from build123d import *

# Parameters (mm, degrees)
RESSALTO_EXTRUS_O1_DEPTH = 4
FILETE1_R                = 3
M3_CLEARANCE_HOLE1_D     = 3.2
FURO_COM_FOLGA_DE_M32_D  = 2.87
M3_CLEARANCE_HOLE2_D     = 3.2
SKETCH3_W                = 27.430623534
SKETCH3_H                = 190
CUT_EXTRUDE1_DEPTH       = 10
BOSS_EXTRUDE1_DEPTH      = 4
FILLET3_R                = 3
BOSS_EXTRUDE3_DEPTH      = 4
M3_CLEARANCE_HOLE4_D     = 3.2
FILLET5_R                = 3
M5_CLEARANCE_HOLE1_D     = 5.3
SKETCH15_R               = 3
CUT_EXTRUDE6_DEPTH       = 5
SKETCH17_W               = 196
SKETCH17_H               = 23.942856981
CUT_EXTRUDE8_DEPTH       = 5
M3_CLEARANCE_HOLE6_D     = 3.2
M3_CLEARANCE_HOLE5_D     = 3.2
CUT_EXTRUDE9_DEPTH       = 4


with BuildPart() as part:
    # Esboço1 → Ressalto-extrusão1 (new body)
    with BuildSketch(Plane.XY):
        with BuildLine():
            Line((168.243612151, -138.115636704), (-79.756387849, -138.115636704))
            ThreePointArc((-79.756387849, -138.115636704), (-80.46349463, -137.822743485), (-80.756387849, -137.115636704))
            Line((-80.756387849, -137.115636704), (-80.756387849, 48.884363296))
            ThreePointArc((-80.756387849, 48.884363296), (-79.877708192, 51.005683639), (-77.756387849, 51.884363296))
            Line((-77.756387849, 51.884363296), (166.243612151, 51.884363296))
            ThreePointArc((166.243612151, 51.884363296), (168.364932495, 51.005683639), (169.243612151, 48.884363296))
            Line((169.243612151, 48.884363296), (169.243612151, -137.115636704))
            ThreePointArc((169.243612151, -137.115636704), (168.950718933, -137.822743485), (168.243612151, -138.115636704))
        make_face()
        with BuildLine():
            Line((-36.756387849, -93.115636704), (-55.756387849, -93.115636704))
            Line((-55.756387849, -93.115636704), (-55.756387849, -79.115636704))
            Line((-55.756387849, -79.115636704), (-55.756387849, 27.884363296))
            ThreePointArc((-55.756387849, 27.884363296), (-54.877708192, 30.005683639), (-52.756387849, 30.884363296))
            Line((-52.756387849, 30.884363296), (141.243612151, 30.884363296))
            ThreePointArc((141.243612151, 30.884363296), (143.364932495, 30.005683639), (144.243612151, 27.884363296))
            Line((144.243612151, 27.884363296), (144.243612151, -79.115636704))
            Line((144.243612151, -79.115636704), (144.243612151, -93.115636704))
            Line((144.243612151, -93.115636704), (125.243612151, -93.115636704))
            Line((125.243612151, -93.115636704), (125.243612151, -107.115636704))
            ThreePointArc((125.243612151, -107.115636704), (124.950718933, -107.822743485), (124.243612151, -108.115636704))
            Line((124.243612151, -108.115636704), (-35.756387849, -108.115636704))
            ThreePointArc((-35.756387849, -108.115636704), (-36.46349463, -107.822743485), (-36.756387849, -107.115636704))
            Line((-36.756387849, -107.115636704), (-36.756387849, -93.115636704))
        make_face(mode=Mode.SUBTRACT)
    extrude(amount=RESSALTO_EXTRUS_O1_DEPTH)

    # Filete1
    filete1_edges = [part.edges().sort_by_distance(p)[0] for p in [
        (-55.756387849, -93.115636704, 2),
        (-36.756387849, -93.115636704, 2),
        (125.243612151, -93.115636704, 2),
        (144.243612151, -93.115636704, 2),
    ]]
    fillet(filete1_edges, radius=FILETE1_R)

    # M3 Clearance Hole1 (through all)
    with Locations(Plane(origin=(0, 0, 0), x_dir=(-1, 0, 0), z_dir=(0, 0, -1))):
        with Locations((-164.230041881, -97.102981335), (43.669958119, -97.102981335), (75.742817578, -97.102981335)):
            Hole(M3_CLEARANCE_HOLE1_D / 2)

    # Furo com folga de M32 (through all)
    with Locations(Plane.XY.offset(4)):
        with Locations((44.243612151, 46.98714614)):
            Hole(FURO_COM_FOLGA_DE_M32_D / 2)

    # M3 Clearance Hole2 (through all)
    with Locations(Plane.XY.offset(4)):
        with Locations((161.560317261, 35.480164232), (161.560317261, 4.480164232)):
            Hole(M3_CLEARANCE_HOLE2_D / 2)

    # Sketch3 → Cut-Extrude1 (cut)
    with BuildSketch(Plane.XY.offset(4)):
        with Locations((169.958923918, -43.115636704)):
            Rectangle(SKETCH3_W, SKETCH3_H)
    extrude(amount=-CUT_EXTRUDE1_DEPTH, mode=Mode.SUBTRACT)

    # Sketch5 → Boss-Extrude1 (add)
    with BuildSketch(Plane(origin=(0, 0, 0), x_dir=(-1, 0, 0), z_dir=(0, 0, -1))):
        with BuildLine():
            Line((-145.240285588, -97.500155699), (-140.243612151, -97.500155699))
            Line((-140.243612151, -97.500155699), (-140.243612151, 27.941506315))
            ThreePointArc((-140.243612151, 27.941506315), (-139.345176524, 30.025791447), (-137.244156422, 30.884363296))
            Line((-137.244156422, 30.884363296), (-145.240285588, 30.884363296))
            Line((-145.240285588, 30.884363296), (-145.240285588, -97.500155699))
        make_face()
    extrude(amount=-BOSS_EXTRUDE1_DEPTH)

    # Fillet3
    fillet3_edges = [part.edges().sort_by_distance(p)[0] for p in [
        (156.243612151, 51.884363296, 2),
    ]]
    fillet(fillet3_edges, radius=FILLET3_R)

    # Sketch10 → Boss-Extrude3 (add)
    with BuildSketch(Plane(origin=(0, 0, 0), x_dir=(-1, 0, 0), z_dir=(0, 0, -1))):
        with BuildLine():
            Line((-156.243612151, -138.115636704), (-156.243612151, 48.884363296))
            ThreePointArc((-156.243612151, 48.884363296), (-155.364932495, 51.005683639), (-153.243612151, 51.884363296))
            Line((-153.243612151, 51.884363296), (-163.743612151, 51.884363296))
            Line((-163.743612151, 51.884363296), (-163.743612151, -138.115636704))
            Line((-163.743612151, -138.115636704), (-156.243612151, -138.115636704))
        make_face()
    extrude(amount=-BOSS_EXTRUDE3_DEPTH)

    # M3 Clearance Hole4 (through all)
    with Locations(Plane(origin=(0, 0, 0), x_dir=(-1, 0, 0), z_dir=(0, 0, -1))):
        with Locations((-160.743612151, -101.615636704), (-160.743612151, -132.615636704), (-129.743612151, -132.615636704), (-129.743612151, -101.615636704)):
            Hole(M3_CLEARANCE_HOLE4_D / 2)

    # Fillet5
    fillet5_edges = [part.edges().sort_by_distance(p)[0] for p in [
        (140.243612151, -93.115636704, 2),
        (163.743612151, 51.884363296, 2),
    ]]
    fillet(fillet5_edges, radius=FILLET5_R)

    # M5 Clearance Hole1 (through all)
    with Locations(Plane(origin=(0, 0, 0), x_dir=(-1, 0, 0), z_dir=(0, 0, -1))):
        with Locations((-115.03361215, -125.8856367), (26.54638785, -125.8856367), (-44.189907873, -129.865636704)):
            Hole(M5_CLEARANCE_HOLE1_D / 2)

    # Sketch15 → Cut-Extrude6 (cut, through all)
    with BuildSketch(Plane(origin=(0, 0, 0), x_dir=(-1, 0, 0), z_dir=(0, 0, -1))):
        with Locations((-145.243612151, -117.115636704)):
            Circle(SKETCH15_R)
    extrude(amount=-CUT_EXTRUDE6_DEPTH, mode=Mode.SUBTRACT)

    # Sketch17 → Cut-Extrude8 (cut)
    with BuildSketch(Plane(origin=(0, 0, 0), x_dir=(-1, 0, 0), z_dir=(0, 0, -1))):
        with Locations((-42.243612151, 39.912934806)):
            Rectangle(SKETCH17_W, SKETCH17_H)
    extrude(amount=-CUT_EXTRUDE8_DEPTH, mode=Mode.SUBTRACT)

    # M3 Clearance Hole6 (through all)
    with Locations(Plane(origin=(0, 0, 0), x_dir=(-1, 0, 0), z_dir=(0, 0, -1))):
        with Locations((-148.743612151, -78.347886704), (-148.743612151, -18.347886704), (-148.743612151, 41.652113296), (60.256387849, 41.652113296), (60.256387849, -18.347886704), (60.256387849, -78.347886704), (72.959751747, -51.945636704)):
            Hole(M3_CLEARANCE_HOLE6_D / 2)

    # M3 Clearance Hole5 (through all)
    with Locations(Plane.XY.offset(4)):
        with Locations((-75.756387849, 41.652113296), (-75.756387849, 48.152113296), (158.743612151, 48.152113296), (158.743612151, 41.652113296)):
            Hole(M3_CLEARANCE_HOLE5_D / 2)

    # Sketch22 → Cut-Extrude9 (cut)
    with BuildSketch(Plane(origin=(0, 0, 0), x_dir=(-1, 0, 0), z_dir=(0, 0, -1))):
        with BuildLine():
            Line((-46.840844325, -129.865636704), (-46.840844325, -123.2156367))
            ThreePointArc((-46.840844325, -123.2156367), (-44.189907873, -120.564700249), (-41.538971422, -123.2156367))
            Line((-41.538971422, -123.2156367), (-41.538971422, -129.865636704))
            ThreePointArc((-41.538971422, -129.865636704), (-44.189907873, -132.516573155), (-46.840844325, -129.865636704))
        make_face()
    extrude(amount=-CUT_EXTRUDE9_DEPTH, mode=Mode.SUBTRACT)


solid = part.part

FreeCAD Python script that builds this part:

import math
import FreeCAD as App
import Part
import Sketcher


def edges_at(feature, points):
    """Names of the edges that pass closest to the given points."""
    edges = feature.Shape.Edges
    near = lambda p: min(range(len(edges)), key=lambda i: edges[i].distToShape(Part.Vertex(*p))[0])
    return sorted({f"Edge{near(p) + 1}" for p in points})

doc = App.newDocument("Part")
body = doc.addObject("PartDesign::Body", "Body")

sketch1 = body.newObject("Sketcher::SketchObject", "Sketch")
sketch1.AttachmentSupport = (doc.getObject("XY_Plane"), [""])
sketch1.MapMode = "FlatFace"
sketch1.addGeometry(Part.LineSegment(App.Vector(-79.756388, -138.115637, 0), App.Vector(168.243612, -138.115637, 0)), False)
sketch1.addGeometry(Part.ArcOfCircle(Part.Circle(App.Vector(168.243612, -137.115637, 0), App.Vector(0, 0, 1), 1), math.radians(-90), math.radians(0)), False)
sketch1.addGeometry(Part.LineSegment(App.Vector(169.243612, -137.115637, 0), App.Vector(169.243612, 48.884363, 0)), False)
sketch1.addGeometry(Part.ArcOfCircle(Part.Circle(App.Vector(166.243612, 48.884363, 0), App.Vector(0, 0, 1), 3), math.radians(0), math.radians(90)), False)
sketch1.addGeometry(Part.LineSegment(App.Vector(166.243612, 51.884363, 0), App.Vector(-77.756388, 51.884363, 0)), False)
sketch1.addGeometry(Part.ArcOfCircle(Part.Circle(App.Vector(-77.756388, 48.884363, 0), App.Vector(0, 0, 1), 3), math.radians(90), math.radians(180)), False)
sketch1.addGeometry(Part.LineSegment(App.Vector(-80.756388, 48.884363, 0), App.Vector(-80.756388, -137.115637, 0)), False)
sketch1.addGeometry(Part.ArcOfCircle(Part.Circle(App.Vector(-79.756388, -137.115637, 0), App.Vector(0, 0, 1), 1), math.radians(-180), math.radians(-90)), False)
sketch1.addGeometry(Part.LineSegment(App.Vector(-36.756388, -93.115637, 0), App.Vector(-55.756388, -93.115637, 0)), False)
sketch1.addGeometry(Part.LineSegment(App.Vector(-55.756388, -93.115637, 0), App.Vector(-55.756388, 27.884363, 0)), False)
sketch1.addGeometry(Part.ArcOfCircle(Part.Circle(App.Vector(-52.756388, 27.884363, 0), App.Vector(0, 0, 1), 3), math.radians(90), math.radians(180)), False)
sketch1.addGeometry(Part.LineSegment(App.Vector(-52.756388, 30.884363, 0), App.Vector(141.243612, 30.884363, 0)), False)
sketch1.addGeometry(Part.ArcOfCircle(Part.Circle(App.Vector(141.243612, 27.884363, 0), App.Vector(0, 0, 1), 3), math.radians(0), math.radians(90)), False)
sketch1.addGeometry(Part.LineSegment(App.Vector(144.243612, 27.884363, 0), App.Vector(144.243612, -93.115637, 0)), False)
sketch1.addGeometry(Part.LineSegment(App.Vector(144.243612, -93.115637, 0), App.Vector(125.243612, -93.115637, 0)), False)
sketch1.addGeometry(Part.LineSegment(App.Vector(125.243612, -93.115637, 0), App.Vector(125.243612, -107.115637, 0)), False)
sketch1.addGeometry(Part.ArcOfCircle(Part.Circle(App.Vector(124.243612, -107.115637, 0), App.Vector(0, 0, 1), 1), math.radians(-90), math.radians(0)), False)
sketch1.addGeometry(Part.LineSegment(App.Vector(124.243612, -108.115637, 0), App.Vector(-35.756388, -108.115637, 0)), False)
sketch1.addGeometry(Part.ArcOfCircle(Part.Circle(App.Vector(-35.756388, -107.115637, 0), App.Vector(0, 0, 1), 1), math.radians(-180), math.radians(-90)), False)
sketch1.addGeometry(Part.LineSegment(App.Vector(-36.756388, -107.115637, 0), App.Vector(-36.756388, -93.115637, 0)), False)
sketch1.addConstraint(Sketcher.Constraint("Tangent", 0, 2, 1, 1))
sketch1.addConstraint(Sketcher.Constraint("Tangent", 1, 2, 2, 1))
sketch1.addConstraint(Sketcher.Constraint("Tangent", 2, 2, 3, 1))
sketch1.addConstraint(Sketcher.Constraint("Tangent", 3, 2, 4, 1))
sketch1.addConstraint(Sketcher.Constraint("Tangent", 4, 2, 5, 1))
sketch1.addConstraint(Sketcher.Constraint("Tangent", 5, 2, 6, 1))
sketch1.addConstraint(Sketcher.Constraint("Tangent", 6, 2, 7, 1))
sketch1.addConstraint(Sketcher.Constraint("Tangent", 7, 2, 0, 1))
sketch1.addConstraint(Sketcher.Constraint("Coincident", 8, 2, 9, 1))
sketch1.addConstraint(Sketcher.Constraint("Tangent", 9, 2, 10, 2))
sketch1.addConstraint(Sketcher.Constraint("Tangent", 10, 1, 11, 1))
sketch1.addConstraint(Sketcher.Constraint("Tangent", 11, 2, 12, 2))
sketch1.addConstraint(Sketcher.Constraint("Tangent", 12, 1, 13, 1))
sketch1.addConstraint(Sketcher.Constraint("Coincident", 13, 2, 14, 1))
sketch1.addConstraint(Sketcher.Constraint("Coincident", 14, 2, 15, 1))
sketch1.addConstraint(Sketcher.Constraint("Tangent", 15, 2, 16, 2))
sketch1.addConstraint(Sketcher.Constraint("Tangent", 16, 1, 17, 1))
sketch1.addConstraint(Sketcher.Constraint("Tangent", 17, 2, 18, 2))
sketch1.addConstraint(Sketcher.Constraint("Tangent", 18, 1, 19, 1))
sketch1.addConstraint(Sketcher.Constraint("Coincident", 19, 2, 8, 1))
sketch1.addConstraint(Sketcher.Constraint("Horizontal", 0))
sketch1.addConstraint(Sketcher.Constraint("Vertical", 2))
sketch1.addConstraint(Sketcher.Constraint("Horizontal", 4))
sketch1.addConstraint(Sketcher.Constraint("Vertical", 6))
sketch1.addConstraint(Sketcher.Constraint("Horizontal", 8))
sketch1.addConstraint(Sketcher.Constraint("Vertical", 9))
sketch1.addConstraint(Sketcher.Constraint("Horizontal", 11))
sketch1.addConstraint(Sketcher.Constraint("Vertical", 13))
sketch1.addConstraint(Sketcher.Constraint("Horizontal", 14))
sketch1.addConstraint(Sketcher.Constraint("Vertical", 15))
sketch1.addConstraint(Sketcher.Constraint("Horizontal", 17))
sketch1.addConstraint(Sketcher.Constraint("Vertical", 19))
sketch1.addConstraint(Sketcher.Constraint("Equal", 3, 5))
sketch1.addConstraint(Sketcher.Constraint("Equal", 1, 7))
sketch1.addConstraint(Sketcher.Constraint("Equal", 5, 10))
sketch1.addConstraint(Sketcher.Constraint("Equal", 10, 12))
sketch1.addConstraint(Sketcher.Constraint("Equal", 7, 16))
sketch1.addConstraint(Sketcher.Constraint("Equal", 16, 18))
sketch1.addConstraint(Sketcher.Constraint("Horizontal", 8, 2, 13, 2))
sketch1.addConstraint(Sketcher.Constraint("Equal", 8, 14))
sketch1.addConstraint(Sketcher.Constraint("Radius", 1, 1.0))
sketch1.addConstraint(Sketcher.Constraint("Radius", 3, 3.0))
sketch1.addConstraint(Sketcher.Constraint("DistanceX", 0, 1, 0, 2, 248.0))
sketch1.addConstraint(Sketcher.Constraint("DistanceX", 8, 2, 8, 1, 19.0))
sketch1.addConstraint(Sketcher.Constraint("DistanceX", 11, 1, 11, 2, 194.0))
sketch1.addConstraint(Sketcher.Constraint("DistanceY", 2, 1, 2, 2, 186.0))
sketch1.addConstraint(Sketcher.Constraint("DistanceY", 9, 1, 9, 2, 121.0))
sketch1.addConstraint(Sketcher.Constraint("DistanceY", 15, 2, 15, 1, 14.0))
sketch1.addConstraint(Sketcher.Constraint("DistanceX", 5, 3, 10, 3, 25.0))
sketch1.addConstraint(Sketcher.Constraint("DistanceY", 10, 3, 5, 3, 21.0))
sketch1.addConstraint(Sketcher.Constraint("DistanceX", -1, 1, 1, 3, 168.243612))
sketch1.addConstraint(Sketcher.Constraint("DistanceY", 1, 3, -1, 1, 137.115637))
pad1 = body.newObject("PartDesign::Pad", "Pad")
pad1.Profile = sketch1
pad1.Length = 4
doc.recompute()

fillet = body.newObject("PartDesign::Fillet", "Fillet")
fillet.Base = (pad1, edges_at(pad1, [
    (-55.756, -93.116, 2),
    (-36.756, -93.116, 2),
    (125.244, -93.116, 2),
    (144.244, -93.116, 2),
]))
fillet.Radius = 3

sketch2 = body.newObject("Sketcher::SketchObject", "Sketch001")
sketch2.AttachmentSupport = (doc.getObject("XY_Plane"), [""])
sketch2.MapMode = "FlatFace"
sketch2.addGeometry(Part.Circle(App.Vector(164.230042, -97.102981, 0), App.Vector(0, 0, 1), 1.6), False)
sketch2.addGeometry(Part.Circle(App.Vector(-43.669958, -97.102981, 0), App.Vector(0, 0, 1), 1.6), False)
sketch2.addGeometry(Part.Circle(App.Vector(-75.742818, -97.102981, 0), App.Vector(0, 0, 1), 1.6), False)
sketch2.addConstraint(Sketcher.Constraint("Equal", 0, 1))
sketch2.addConstraint(Sketcher.Constraint("Equal", 1, 2))
sketch2.addConstraint(Sketcher.Constraint("Horizontal", 0, 3, 1, 3))
sketch2.addConstraint(Sketcher.Constraint("Horizontal", 1, 3, 2, 3))
sketch2.addConstraint(Sketcher.Constraint("Diameter", 0, 3.2))
sketch2.addConstraint(Sketcher.Constraint("DistanceX", 1, 3, 0, 3, 207.9))
sketch2.addConstraint(Sketcher.Constraint("DistanceX", -1, 1, 0, 3, 164.230042))
sketch2.addConstraint(Sketcher.Constraint("DistanceY", 0, 3, -1, 1, 97.102981))
sketch2.addConstraint(Sketcher.Constraint("DistanceX", 2, 3, 1, 3, 32.072859))
doc.recompute()
hole = body.newObject("PartDesign::Hole", "Hole")
hole.Profile = sketch2
hole.ThreadType = "None"
hole.Diameter = 3.2
hole.DepthType = "ThroughAll"
hole.Reversed = True

sketch3 = body.newObject("Sketcher::SketchObject", "Sketch002")
sketch3.AttachmentSupport = (doc.getObject("XY_Plane"), [""])
sketch3.MapMode = "FlatFace"
sketch3.AttachmentOffset = App.Placement(App.Vector(0, 0, 4), App.Rotation())
sketch3.addGeometry(Part.Circle(App.Vector(44.243612, 46.987146, 0), App.Vector(0, 0, 1), 1.435), False)
sketch3.addConstraint(Sketcher.Constraint("Diameter", 0, 2.87))
sketch3.addConstraint(Sketcher.Constraint("DistanceX", -1, 1, 0, 3, 44.243612))
sketch3.addConstraint(Sketcher.Constraint("DistanceY", -1, 1, 0, 3, 46.987146))
doc.recompute()
hole2 = body.newObject("PartDesign::Hole", "Hole001")
hole2.Profile = sketch3
hole2.ThreadType = "None"
hole2.Diameter = 2.87
hole2.DepthType = "ThroughAll"

sketch4 = body.newObject("Sketcher::SketchObject", "Sketch003")
sketch4.AttachmentSupport = (doc.getObject("XY_Plane"), [""])
sketch4.MapMode = "FlatFace"
sketch4.AttachmentOffset = App.Placement(App.Vector(0, 0, 4), App.Rotation())
sketch4.addGeometry(Part.Circle(App.Vector(161.560317, 35.480164, 0), App.Vector(0, 0, 1), 1.6), False)
sketch4.addGeometry(Part.Circle(App.Vector(161.560317, 4.480164, 0), App.Vector(0, 0, 1), 1.6), False)
sketch4.addConstraint(Sketcher.Constraint("Equal", 0, 1))
sketch4.addConstraint(Sketcher.Constraint("Vertical", 0, 3, 1, 3))
sketch4.addConstraint(Sketcher.Constraint("Diameter", 0, 3.2))
sketch4.addConstraint(Sketcher.Constraint("DistanceY", 1, 3, 0, 3, 31.0))
sketch4.addConstraint(Sketcher.Constraint("DistanceX", -1, 1, 0, 3, 161.560317))
sketch4.addConstraint(Sketcher.Constraint("DistanceY", -1, 1, 0, 3, 35.480164))
doc.recompute()
hole3 = body.newObject("PartDesign::Hole", "Hole002")
hole3.Profile = sketch4
hole3.ThreadType = "None"
hole3.Diameter = 3.2
hole3.DepthType = "ThroughAll"

sketch5 = body.newObject("Sketcher::SketchObject", "Sketch004")
sketch5.AttachmentSupport = (doc.getObject("XY_Plane"), [""])
sketch5.MapMode = "FlatFace"
sketch5.AttachmentOffset = App.Placement(App.Vector(0, 0, 4), App.Rotation())
sketch5.addGeometry(Part.LineSegment(App.Vector(156.243612, 51.884363, 0), App.Vector(156.243612, -138.115637, 0)), False)
sketch5.addGeometry(Part.LineSegment(App.Vector(156.243612, -138.115637, 0), App.Vector(183.674236, -138.115637, 0)), False)
sketch5.addGeometry(Part.LineSegment(App.Vector(183.674236, -138.115637, 0), App.Vector(183.674236, 51.884363, 0)), False)
sketch5.addGeometry(Part.LineSegment(App.Vector(183.674236, 51.884363, 0), App.Vector(156.243612, 51.884363, 0)), False)
sketch5.addConstraint(Sketcher.Constraint("Coincident", 0, 2, 1, 1))
sketch5.addConstraint(Sketcher.Constraint("Coincident", 1, 2, 2, 1))
sketch5.addConstraint(Sketcher.Constraint("Coincident", 2, 2, 3, 1))
sketch5.addConstraint(Sketcher.Constraint("Coincident", 3, 2, 0, 1))
sketch5.addConstraint(Sketcher.Constraint("Vertical", 0))
sketch5.addConstraint(Sketcher.Constraint("Horizontal", 1))
sketch5.addConstraint(Sketcher.Constraint("Vertical", 2))
sketch5.addConstraint(Sketcher.Constraint("Horizontal", 3))
sketch5.addConstraint(Sketcher.Constraint("DistanceY", 0, 2, 0, 1, 190.0))
sketch5.addConstraint(Sketcher.Constraint("DistanceX", 1, 1, 1, 2, 27.430624))
sketch5.addConstraint(Sketcher.Constraint("DistanceX", -1, 1, 0, 2, 156.243612))
sketch5.addConstraint(Sketcher.Constraint("DistanceY", 0, 2, -1, 1, 138.115637))
pocket1 = body.newObject("PartDesign::Pocket", "Pocket")
pocket1.Profile = sketch5
pocket1.Length = 10

sketch6 = body.newObject("Sketcher::SketchObject", "Sketch005")
sketch6.AttachmentSupport = (doc.getObject("XY_Plane"), [""])
sketch6.MapMode = "FlatFace"
sketch6.addGeometry(Part.LineSegment(App.Vector(145.240286, -97.500156, 0), App.Vector(140.243612, -97.500156, 0)), False)
sketch6.addGeometry(Part.LineSegment(App.Vector(140.243612, -97.500156, 0), App.Vector(140.243612, 27.941506, 0)), False)
sketch6.addGeometry(Part.ArcOfCircle(Part.Circle(App.Vector(137.244156, 27.884363, 0), App.Vector(0, 0, 1), 3), math.radians(1.091417), math.radians(90)), False)
sketch6.addGeometry(Part.LineSegment(App.Vector(137.244156, 30.884363, 0), App.Vector(145.240286, 30.884363, 0)), False)
sketch6.addGeometry(Part.LineSegment(App.Vector(145.240286, 30.884363, 0), App.Vector(145.240286, -97.500156, 0)), False)
sketch6.addConstraint(Sketcher.Constraint("Coincident", 0, 2, 1, 1))
sketch6.addConstraint(Sketcher.Constraint("Coincident", 1, 2, 2, 1))
sketch6.addConstraint(Sketcher.Constraint("Tangent", 2, 2, 3, 1))
sketch6.addConstraint(Sketcher.Constraint("Coincident", 3, 2, 4, 1))
sketch6.addConstraint(Sketcher.Constraint("Coincident", 4, 2, 0, 1))
sketch6.addConstraint(Sketcher.Constraint("Horizontal", 0))
sketch6.addConstraint(Sketcher.Constraint("Vertical", 1))
sketch6.addConstraint(Sketcher.Constraint("Horizontal", 3))
sketch6.addConstraint(Sketcher.Constraint("Vertical", 4))
sketch6.addConstraint(Sketcher.Constraint("Radius", 2, 3.0))
sketch6.addConstraint(Sketcher.Constraint("DistanceX", 3, 1, 3, 2, 7.996129))
sketch6.addConstraint(Sketcher.Constraint("DistanceY", 4, 2, 4, 1, 128.384519))
sketch6.addConstraint(Sketcher.Constraint("DistanceX", 0, 2, 0, 1, 4.996673))
sketch6.addConstraint(Sketcher.Constraint("DistanceX", -1, 1, 2, 3, 137.244156))
sketch6.addConstraint(Sketcher.Constraint("DistanceY", -1, 1, 2, 3, 27.884363))
pad2 = body.newObject("PartDesign::Pad", "Pad001")
pad2.Profile = sketch6
pad2.Length = 4
doc.recompute()

fillet2 = body.newObject("PartDesign::Fillet", "Fillet001")
fillet2.Base = (pad2, edges_at(pad2, [(156.244, 51.884, 2)]))
fillet2.Radius = 3

sketch7 = body.newObject("Sketcher::SketchObject", "Sketch006")
sketch7.AttachmentSupport = (doc.getObject("XY_Plane"), [""])
sketch7.MapMode = "FlatFace"
sketch7.addGeometry(Part.LineSegment(App.Vector(156.243612, -138.115637, 0), App.Vector(156.243612, 48.884363, 0)), False)
sketch7.addGeometry(Part.ArcOfCircle(Part.Circle(App.Vector(153.243612, 48.884363, 0), App.Vector(0, 0, 1), 3), math.radians(0), math.radians(90)), False)
sketch7.addGeometry(Part.LineSegment(App.Vector(153.243612, 51.884363, 0), App.Vector(163.743612, 51.884363, 0)), False)
sketch7.addGeometry(Part.LineSegment(App.Vector(163.743612, 51.884363, 0), App.Vector(163.743612, -138.115637, 0)), False)
sketch7.addGeometry(Part.LineSegment(App.Vector(163.743612, -138.115637, 0), App.Vector(156.243612, -138.115637, 0)), False)
sketch7.addConstraint(Sketcher.Constraint("Tangent", 0, 2, 1, 1))
sketch7.addConstraint(Sketcher.Constraint("Tangent", 1, 2, 2, 1))
sketch7.addConstraint(Sketcher.Constraint("Coincident", 2, 2, 3, 1))
sketch7.addConstraint(Sketcher.Constraint("Coincident", 3, 2, 4, 1))
sketch7.addConstraint(Sketcher.Constraint("Coincident", 4, 2, 0, 1))
sketch7.addConstraint(Sketcher.Constraint("Vertical", 0))
sketch7.addConstraint(Sketcher.Constraint("Horizontal", 2))
sketch7.addConstraint(Sketcher.Constraint("Vertical", 3))
sketch7.addConstraint(Sketcher.Constraint("Horizontal", 4))
sketch7.addConstraint(Sketcher.Constraint("Radius", 1, 3.0))
sketch7.addConstraint(Sketcher.Constraint("DistanceY", 0, 1, 0, 2, 187.0))
sketch7.addConstraint(Sketcher.Constraint("DistanceX", 2, 1, 2, 2, 10.5))
sketch7.addConstraint(Sketcher.Constraint("DistanceX", -1, 1, 1, 3, 153.243612))
sketch7.addConstraint(Sketcher.Constraint("DistanceY", -1, 1, 1, 3, 48.884363))
pad3 = body.newObject("PartDesign::Pad", "Pad002")
pad3.Profile = sketch7
pad3.Length = 4

sketch8 = body.newObject("Sketcher::SketchObject", "Sketch007")
sketch8.AttachmentSupport = (doc.getObject("XY_Plane"), [""])
sketch8.MapMode = "FlatFace"
sketch8.addGeometry(Part.Circle(App.Vector(160.743612, -101.615637, 0), App.Vector(0, 0, 1), 1.6), False)
sketch8.addGeometry(Part.Circle(App.Vector(160.743612, -132.615637, 0), App.Vector(0, 0, 1), 1.6), False)
sketch8.addGeometry(Part.Circle(App.Vector(129.743612, -132.615637, 0), App.Vector(0, 0, 1), 1.6), False)
sketch8.addGeometry(Part.Circle(App.Vector(129.743612, -101.615637, 0), App.Vector(0, 0, 1), 1.6), False)
sketch8.addConstraint(Sketcher.Constraint("Equal", 0, 1))
sketch8.addConstraint(Sketcher.Constraint("Equal", 1, 2))
sketch8.addConstraint(Sketcher.Constraint("Equal", 2, 3))
sketch8.addConstraint(Sketcher.Constraint("Horizontal", 1, 3, 2, 3))
sketch8.addConstraint(Sketcher.Constraint("Horizontal", 0, 3, 3, 3))
sketch8.addConstraint(Sketcher.Constraint("Vertical", 0, 3, 1, 3))
sketch8.addConstraint(Sketcher.Constraint("Vertical", 2, 3, 3, 3))
sketch8.addConstraint(Sketcher.Constraint("Diameter", 0, 3.2))
sketch8.addConstraint(Sketcher.Constraint("DistanceY", 1, 3, 0, 3, 31.0))
sketch8.addConstraint(Sketcher.Constraint("DistanceX", 2, 3, 1, 3, 31.0))
sketch8.addConstraint(Sketcher.Constraint("DistanceX", -1, 1, 0, 3, 160.743612))
sketch8.addConstraint(Sketcher.Constraint("DistanceY", 0, 3, -1, 1, 101.615637))
doc.recompute()
hole4 = body.newObject("PartDesign::Hole", "Hole003")
hole4.Profile = sketch8
hole4.ThreadType = "None"
hole4.Diameter = 3.2
hole4.DepthType = "ThroughAll"
hole4.Reversed = True
doc.recompute()

fillet3 = body.newObject("PartDesign::Fillet", "Fillet002")
fillet3.Base = (hole4, edges_at(hole4, [(140.244, -93.116, 2), (163.744, 51.884, 2)]))
fillet3.Radius = 3

sketch9 = body.newObject("Sketcher::SketchObject", "Sketch008")
sketch9.AttachmentSupport = (doc.getObject("XY_Plane"), [""])
sketch9.MapMode = "FlatFace"
sketch9.addGeometry(Part.Circle(App.Vector(115.033612, -125.885637, 0), App.Vector(0, 0, 1), 2.65), False)
sketch9.addGeometry(Part.Circle(App.Vector(-26.546388, -125.885637, 0), App.Vector(0, 0, 1), 2.65), False)
sketch9.addGeometry(Part.Circle(App.Vector(44.189908, -129.865637, 0), App.Vector(0, 0, 1), 2.65), False)
sketch9.addConstraint(Sketcher.Constraint("Equal", 0, 1))
sketch9.addConstraint(Sketcher.Constraint("Equal", 1, 2))
sketch9.addConstraint(Sketcher.Constraint("Horizontal", 0, 3, 1, 3))
sketch9.addConstraint(Sketcher.Constraint("Diameter", 0, 5.3))
sketch9.addConstraint(Sketcher.Constraint("DistanceX", 1, 3, 0, 3, 141.58))
sketch9.addConstraint(Sketcher.Constraint("DistanceY", 2, 3, 1, 3, 3.98))
sketch9.addConstraint(Sketcher.Constraint("DistanceX", -1, 1, 0, 3, 115.033612))
sketch9.addConstraint(Sketcher.Constraint("DistanceY", 0, 3, -1, 1, 125.885637))
sketch9.addConstraint(Sketcher.Constraint("DistanceX", -1, 1, 2, 3, 44.189908))
doc.recompute()
hole5 = body.newObject("PartDesign::Hole", "Hole004")
hole5.Profile = sketch9
hole5.ThreadType = "None"
hole5.Diameter = 5.3
hole5.DepthType = "ThroughAll"
hole5.Reversed = True

sketch10 = body.newObject("Sketcher::SketchObject", "Sketch009")
sketch10.AttachmentSupport = (doc.getObject("XY_Plane"), [""])
sketch10.MapMode = "FlatFace"
sketch10.addGeometry(Part.Circle(App.Vector(145.243612, -117.115637, 0), App.Vector(0, 0, 1), 3), False)
sketch10.addConstraint(Sketcher.Constraint("Diameter", 0, 6.0))
sketch10.addConstraint(Sketcher.Constraint("DistanceX", -1, 1, 0, 3, 145.243612))
sketch10.addConstraint(Sketcher.Constraint("DistanceY", 0, 3, -1, 1, 117.115637))
pocket2 = body.newObject("PartDesign::Pocket", "Pocket001")
pocket2.Profile = sketch10
pocket2.Type = "ThroughAll"
pocket2.Reversed = True

sketch11 = body.newObject("Sketcher::SketchObject", "Sketch010")
sketch11.AttachmentSupport = (doc.getObject("XY_Plane"), [""])
sketch11.MapMode = "FlatFace"
sketch11.addGeometry(Part.LineSegment(App.Vector(140.243612, 51.884363, 0), App.Vector(140.243612, 27.941506, 0)), False)
sketch11.addGeometry(Part.LineSegment(App.Vector(140.243612, 27.941506, 0), App.Vector(-55.756388, 27.941506, 0)), False)
sketch11.addGeometry(Part.LineSegment(App.Vector(-55.756388, 27.941506, 0), App.Vector(-55.756388, 51.884363, 0)), False)
sketch11.addGeometry(Part.LineSegment(App.Vector(-55.756388, 51.884363, 0), App.Vector(140.243612, 51.884363, 0)), False)
sketch11.addConstraint(Sketcher.Constraint("Coincident", 0, 2, 1, 1))
sketch11.addConstraint(Sketcher.Constraint("Coincident", 1, 2, 2, 1))
sketch11.addConstraint(Sketcher.Constraint("Coincident", 2, 2, 3, 1))
sketch11.addConstraint(Sketcher.Constraint("Coincident", 3, 2, 0, 1))
sketch11.addConstraint(Sketcher.Constraint("Vertical", 0))
sketch11.addConstraint(Sketcher.Constraint("Horizontal", 1))
sketch11.addConstraint(Sketcher.Constraint("Vertical", 2))
sketch11.addConstraint(Sketcher.Constraint("Horizontal", 3))
sketch11.addConstraint(Sketcher.Constraint("DistanceX", 1, 2, 1, 1, 196.0))
sketch11.addConstraint(Sketcher.Constraint("DistanceY", 0, 2, 0, 1, 23.942857))
sketch11.addConstraint(Sketcher.Constraint("DistanceX", -1, 1, 0, 2, 140.243612))
sketch11.addConstraint(Sketcher.Constraint("DistanceY", -1, 1, 0, 2, 27.941506))
pocket3 = body.newObject("PartDesign::Pocket", "Pocket002")
pocket3.Profile = sketch11
pocket3.Length = 5
pocket3.Reversed = True

sketch12 = body.newObject("Sketcher::SketchObject", "Sketch011")
sketch12.AttachmentSupport = (doc.getObject("XY_Plane"), [""])
sketch12.MapMode = "FlatFace"
sketch12.addGeometry(Part.Circle(App.Vector(148.743612, -78.347887, 0), App.Vector(0, 0, 1), 1.6), False)
sketch12.addGeometry(Part.Circle(App.Vector(148.743612, -18.347887, 0), App.Vector(0, 0, 1), 1.6), False)
sketch12.addGeometry(Part.Circle(App.Vector(148.743612, 41.652113, 0), App.Vector(0, 0, 1), 1.6), False)
sketch12.addGeometry(Part.Circle(App.Vector(-60.256388, 41.652113, 0), App.Vector(0, 0, 1), 1.6), False)
sketch12.addGeometry(Part.Circle(App.Vector(-60.256388, -18.347887, 0), App.Vector(0, 0, 1), 1.6), False)
sketch12.addGeometry(Part.Circle(App.Vector(-60.256388, -78.347887, 0), App.Vector(0, 0, 1), 1.6), False)
sketch12.addGeometry(Part.Circle(App.Vector(-72.959752, -51.945637, 0), App.Vector(0, 0, 1), 1.6), False)
sketch12.addConstraint(Sketcher.Constraint("Equal", 0, 1))
sketch12.addConstraint(Sketcher.Constraint("Equal", 1, 2))
sketch12.addConstraint(Sketcher.Constraint("Equal", 2, 3))
sketch12.addConstraint(Sketcher.Constraint("Equal", 3, 4))
sketch12.addConstraint(Sketcher.Constraint("Equal", 4, 5))
sketch12.addConstraint(Sketcher.Constraint("Equal", 5, 6))
sketch12.addConstraint(Sketcher.Constraint("Horizontal", 2, 3, 3, 3))
sketch12.addConstraint(Sketcher.Constraint("Horizontal", 1, 3, 4, 3))
sketch12.addConstraint(Sketcher.Constraint("Horizontal", 0, 3, 5, 3))
sketch12.addConstraint(Sketcher.Constraint("Vertical", 0, 3, 1, 3))
sketch12.addConstraint(Sketcher.Constraint("Vertical", 1, 3, 2, 3))
sketch12.addConstraint(Sketcher.Constraint("Vertical", 3, 3, 4, 3))
sketch12.addConstraint(Sketcher.Constraint("Vertical", 4, 3, 5, 3))
sketch12.addConstraint(Sketcher.Constraint("Diameter", 0, 3.2))
sketch12.addConstraint(Sketcher.Constraint("DistanceY", 0, 3, 1, 3, 60.0))
sketch12.addConstraint(Sketcher.Constraint("DistanceY", 1, 3, 2, 3, 60.0))
sketch12.addConstraint(Sketcher.Constraint("DistanceX", 3, 3, 2, 3, 209.0))
sketch12.addConstraint(Sketcher.Constraint("DistanceX", 6, 3, -1, 1, 72.959752))
sketch12.addConstraint(Sketcher.Constraint("DistanceY", 5, 3, 6, 3, 26.40225))
sketch12.addConstraint(Sketcher.Constraint("DistanceX", -1, 1, 0, 3, 148.743612))
sketch12.addConstraint(Sketcher.Constraint("DistanceY", 0, 3, -1, 1, 78.347887))
doc.recompute()
hole6 = body.newObject("PartDesign::Hole", "Hole005")
hole6.Profile = sketch12
hole6.ThreadType = "None"
hole6.Diameter = 3.2
hole6.DepthType = "ThroughAll"
hole6.Reversed = True

sketch13 = body.newObject("Sketcher::SketchObject", "Sketch012")
sketch13.AttachmentSupport = (doc.getObject("XY_Plane"), [""])
sketch13.MapMode = "FlatFace"
sketch13.AttachmentOffset = App.Placement(App.Vector(0, 0, 4), App.Rotation())
sketch13.addGeometry(Part.Circle(App.Vector(-75.756388, 41.652113, 0), App.Vector(0, 0, 1), 1.6), False)
sketch13.addGeometry(Part.Circle(App.Vector(-75.756388, 48.152113, 0), App.Vector(0, 0, 1), 1.6), False)
sketch13.addGeometry(Part.Circle(App.Vector(158.743612, 48.152113, 0), App.Vector(0, 0, 1), 1.6), False)
sketch13.addGeometry(Part.Circle(App.Vector(158.743612, 41.652113, 0), App.Vector(0, 0, 1), 1.6), False)
sketch13.addConstraint(Sketcher.Constraint("Equal", 0, 1))
sketch13.addConstraint(Sketcher.Constraint("Equal", 1, 2))
sketch13.addConstraint(Sketcher.Constraint("Equal", 2, 3))
sketch13.addConstraint(Sketcher.Constraint("Horizontal", 1, 3, 2, 3))
sketch13.addConstraint(Sketcher.Constraint("Horizontal", 0, 3, 3, 3))
sketch13.addConstraint(Sketcher.Constraint("Vertical", 0, 3, 1, 3))
sketch13.addConstraint(Sketcher.Constraint("Vertical", 2, 3, 3, 3))
sketch13.addConstraint(Sketcher.Constraint("Diameter", 0, 3.2))
sketch13.addConstraint(Sketcher.Constraint("DistanceY", 0, 3, 1, 3, 6.5))
sketch13.addConstraint(Sketcher.Constraint("DistanceX", 1, 3, 2, 3, 234.5))
sketch13.addConstraint(Sketcher.Constraint("DistanceX", 0, 3, -1, 1, 75.756388))
sketch13.addConstraint(Sketcher.Constraint("DistanceY", -1, 1, 0, 3, 41.652113))
doc.recompute()
hole7 = body.newObject("PartDesign::Hole", "Hole006")
hole7.Profile = sketch13
hole7.ThreadType = "None"
hole7.Diameter = 3.2
hole7.DepthType = "ThroughAll"

sketch14 = body.newObject("Sketcher::SketchObject", "Sketch013")
sketch14.AttachmentSupport = (doc.getObject("XY_Plane"), [""])
sketch14.MapMode = "FlatFace"
sketch14.addGeometry(Part.LineSegment(App.Vector(46.840844, -123.215637, 0), App.Vector(46.840844, -129.865637, 0)), False)
sketch14.addGeometry(Part.ArcOfCircle(Part.Circle(App.Vector(44.189908, -129.865637, 0), App.Vector(0, 0, 1), 2.650936), math.radians(180), math.radians(360)), False)
sketch14.addGeometry(Part.LineSegment(App.Vector(41.538971, -129.865637, 0), App.Vector(41.538971, -123.215637, 0)), False)
sketch14.addGeometry(Part.ArcOfCircle(Part.Circle(App.Vector(44.189908, -123.215637, 0), App.Vector(0, 0, 1), 2.650936), math.radians(0), math.radians(180)), False)
sketch14.addConstraint(Sketcher.Constraint("Tangent", 0, 2, 1, 2))
sketch14.addConstraint(Sketcher.Constraint("Tangent", 1, 1, 2, 1))
sketch14.addConstraint(Sketcher.Constraint("Tangent", 2, 2, 3, 2))
sketch14.addConstraint(Sketcher.Constraint("Tangent", 3, 1, 0, 1))
sketch14.addConstraint(Sketcher.Constraint("Vertical", 0))
sketch14.addConstraint(Sketcher.Constraint("Vertical", 2))
sketch14.addConstraint(Sketcher.Constraint("DistanceY", 0, 2, 0, 1, 6.65))
sketch14.addConstraint(Sketcher.Constraint("Radius", 1, 2.650936))
sketch14.addConstraint(Sketcher.Constraint("DistanceX", -1, 1, 1, 1, 41.538971))
sketch14.addConstraint(Sketcher.Constraint("DistanceY", 1, 3, -1, 1, 129.865637))
pocket4 = body.newObject("PartDesign::Pocket", "Pocket003")
pocket4.Profile = sketch14
pocket4.Length = 4
pocket4.Reversed = True

doc.recompute()
